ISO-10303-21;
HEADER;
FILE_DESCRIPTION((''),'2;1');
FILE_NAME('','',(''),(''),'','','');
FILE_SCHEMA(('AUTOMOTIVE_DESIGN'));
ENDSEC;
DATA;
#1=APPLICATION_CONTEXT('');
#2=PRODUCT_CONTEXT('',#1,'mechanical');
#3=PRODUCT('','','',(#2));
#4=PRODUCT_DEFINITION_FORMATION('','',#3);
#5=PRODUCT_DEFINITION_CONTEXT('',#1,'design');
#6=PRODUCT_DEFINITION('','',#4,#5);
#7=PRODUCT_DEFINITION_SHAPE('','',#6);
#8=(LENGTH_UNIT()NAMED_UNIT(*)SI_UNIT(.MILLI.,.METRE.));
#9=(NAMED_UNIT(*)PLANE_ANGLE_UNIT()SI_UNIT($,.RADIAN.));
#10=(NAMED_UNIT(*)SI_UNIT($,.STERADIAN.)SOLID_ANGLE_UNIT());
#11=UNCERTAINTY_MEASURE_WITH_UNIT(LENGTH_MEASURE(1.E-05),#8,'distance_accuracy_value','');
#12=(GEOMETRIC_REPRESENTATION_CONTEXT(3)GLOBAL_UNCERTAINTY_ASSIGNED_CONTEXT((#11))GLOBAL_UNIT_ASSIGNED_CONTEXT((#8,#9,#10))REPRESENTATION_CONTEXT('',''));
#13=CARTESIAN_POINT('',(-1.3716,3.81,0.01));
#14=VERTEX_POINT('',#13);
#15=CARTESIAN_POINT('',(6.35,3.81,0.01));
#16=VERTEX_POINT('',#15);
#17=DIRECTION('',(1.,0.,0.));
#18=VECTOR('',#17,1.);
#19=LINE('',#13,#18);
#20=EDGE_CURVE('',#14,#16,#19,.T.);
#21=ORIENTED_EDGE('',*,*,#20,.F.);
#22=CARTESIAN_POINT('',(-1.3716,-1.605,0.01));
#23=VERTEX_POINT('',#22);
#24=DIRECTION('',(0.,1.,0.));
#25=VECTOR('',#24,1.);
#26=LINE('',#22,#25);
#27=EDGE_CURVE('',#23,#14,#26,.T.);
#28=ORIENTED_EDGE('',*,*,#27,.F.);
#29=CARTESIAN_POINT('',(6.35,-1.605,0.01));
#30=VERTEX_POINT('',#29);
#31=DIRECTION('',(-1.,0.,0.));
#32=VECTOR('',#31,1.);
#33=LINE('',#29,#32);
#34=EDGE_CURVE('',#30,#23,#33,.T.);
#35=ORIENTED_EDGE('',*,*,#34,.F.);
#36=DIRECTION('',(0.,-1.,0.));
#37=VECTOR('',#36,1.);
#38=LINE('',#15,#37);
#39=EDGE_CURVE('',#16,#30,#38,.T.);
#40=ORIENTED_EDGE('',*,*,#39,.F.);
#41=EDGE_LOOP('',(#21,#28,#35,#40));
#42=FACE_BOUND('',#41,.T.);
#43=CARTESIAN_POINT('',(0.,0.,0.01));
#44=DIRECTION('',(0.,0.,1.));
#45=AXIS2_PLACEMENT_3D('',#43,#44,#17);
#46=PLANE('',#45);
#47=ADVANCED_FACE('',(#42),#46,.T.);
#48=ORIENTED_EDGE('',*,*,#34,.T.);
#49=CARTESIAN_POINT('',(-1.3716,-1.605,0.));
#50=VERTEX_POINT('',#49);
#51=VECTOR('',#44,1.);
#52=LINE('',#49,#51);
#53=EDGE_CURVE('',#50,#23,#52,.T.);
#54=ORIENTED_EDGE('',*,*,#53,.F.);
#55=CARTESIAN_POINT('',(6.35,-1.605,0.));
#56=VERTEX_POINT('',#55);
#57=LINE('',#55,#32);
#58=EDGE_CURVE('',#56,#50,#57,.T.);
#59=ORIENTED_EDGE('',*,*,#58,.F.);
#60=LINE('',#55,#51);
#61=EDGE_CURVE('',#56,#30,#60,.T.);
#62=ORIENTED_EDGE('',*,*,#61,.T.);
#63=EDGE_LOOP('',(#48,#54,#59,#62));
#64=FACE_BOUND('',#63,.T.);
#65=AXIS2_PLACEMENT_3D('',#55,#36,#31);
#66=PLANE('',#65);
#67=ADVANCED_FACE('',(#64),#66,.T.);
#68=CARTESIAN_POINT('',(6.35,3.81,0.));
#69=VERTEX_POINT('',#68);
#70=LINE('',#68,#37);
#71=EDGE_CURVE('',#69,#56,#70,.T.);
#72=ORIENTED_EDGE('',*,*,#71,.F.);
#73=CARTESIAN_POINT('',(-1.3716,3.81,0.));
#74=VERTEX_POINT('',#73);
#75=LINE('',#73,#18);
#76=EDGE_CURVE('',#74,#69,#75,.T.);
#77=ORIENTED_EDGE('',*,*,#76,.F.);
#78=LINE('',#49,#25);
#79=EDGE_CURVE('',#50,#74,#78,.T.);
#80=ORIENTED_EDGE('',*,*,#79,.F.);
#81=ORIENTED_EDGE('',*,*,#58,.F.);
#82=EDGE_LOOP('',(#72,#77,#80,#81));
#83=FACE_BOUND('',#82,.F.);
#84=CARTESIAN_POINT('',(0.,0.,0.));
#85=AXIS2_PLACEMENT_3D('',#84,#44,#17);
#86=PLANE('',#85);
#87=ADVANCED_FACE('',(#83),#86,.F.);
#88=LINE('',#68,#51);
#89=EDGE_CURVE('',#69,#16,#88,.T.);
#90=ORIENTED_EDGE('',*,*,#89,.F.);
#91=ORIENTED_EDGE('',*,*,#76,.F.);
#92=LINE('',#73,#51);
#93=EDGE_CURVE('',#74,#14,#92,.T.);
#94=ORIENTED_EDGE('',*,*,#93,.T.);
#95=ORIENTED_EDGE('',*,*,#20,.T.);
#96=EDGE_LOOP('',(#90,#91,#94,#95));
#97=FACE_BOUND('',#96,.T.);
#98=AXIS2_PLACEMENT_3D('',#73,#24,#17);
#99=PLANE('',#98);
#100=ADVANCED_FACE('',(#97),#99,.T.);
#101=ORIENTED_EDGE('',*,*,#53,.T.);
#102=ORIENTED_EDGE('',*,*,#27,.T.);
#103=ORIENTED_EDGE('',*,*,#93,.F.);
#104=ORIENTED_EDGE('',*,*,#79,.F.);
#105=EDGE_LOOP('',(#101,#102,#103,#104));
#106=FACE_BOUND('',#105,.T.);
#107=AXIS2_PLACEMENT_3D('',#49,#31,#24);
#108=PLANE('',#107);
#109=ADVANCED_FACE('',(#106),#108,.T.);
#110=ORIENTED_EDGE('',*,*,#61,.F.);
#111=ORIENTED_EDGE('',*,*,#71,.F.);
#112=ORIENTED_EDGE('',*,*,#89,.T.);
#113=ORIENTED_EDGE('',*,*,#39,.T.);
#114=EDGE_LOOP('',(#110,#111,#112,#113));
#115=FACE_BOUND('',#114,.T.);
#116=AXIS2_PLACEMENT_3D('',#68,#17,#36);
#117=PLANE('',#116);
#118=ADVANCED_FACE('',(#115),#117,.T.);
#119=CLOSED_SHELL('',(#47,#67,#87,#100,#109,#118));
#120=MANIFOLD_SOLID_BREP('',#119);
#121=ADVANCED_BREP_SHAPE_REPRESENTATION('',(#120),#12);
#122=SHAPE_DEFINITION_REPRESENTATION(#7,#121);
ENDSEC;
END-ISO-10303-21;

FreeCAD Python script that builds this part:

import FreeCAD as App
import Part
import Sketcher

V = App.Vector
Q = App.Units.Quantity

doc = App.newDocument("Part")
body = doc.addObject("PartDesign::Body", "Body")

# Sketch on XY plane
sketch1 = body.newObject("Sketcher::SketchObject", "Sketch")
sketch1.AttachmentSupport = (doc.getObject("XY_Plane"), [""])
sketch1.MapMode = "FlatFace"
sketch1.addGeometry([
    Part.LineSegment(V(6, 4, 0), V(-1, 4, 0)),
    Part.LineSegment(V(-1, 4, 0), V(-1, -2, 0)),
    Part.LineSegment(V(-1, -2, 0), V(6, -2, 0)),
    Part.LineSegment(V(6, -2, 0), V(6, 4, 0)),
], False)
sketch1.addConstraint([
    Sketcher.Constraint("Coincident", 0, 2, 1, 1),
    Sketcher.Constraint("Coincident", 1, 2, 2, 1),
    Sketcher.Constraint("Coincident", 2, 2, 3, 1),
    Sketcher.Constraint("Coincident", 3, 2, 0, 1),
    Sketcher.Constraint("Horizontal", 0),
    Sketcher.Constraint("Vertical", 1),
    Sketcher.Constraint("Horizontal", 2),
    Sketcher.Constraint("Vertical", 3),
    Sketcher.Constraint("DistanceX", 0, 2, 0, 1, Q("0.304 in")),
    Sketcher.Constraint("DistanceY", -1, 1, 0, 2, Q("0.15 in")),
    Sketcher.Constraint("DistanceX", -1, 1, 2, 2, Q("0.25 in")),
    Sketcher.Constraint("DistanceY", 1, 2, 1, 1, Q("0.2132 in")),
])
pad1 = body.newObject("PartDesign::Pad", "Pad")
pad1.Profile = sketch1
pad1.Length = Q("0.0003937 in")

doc.recompute()
